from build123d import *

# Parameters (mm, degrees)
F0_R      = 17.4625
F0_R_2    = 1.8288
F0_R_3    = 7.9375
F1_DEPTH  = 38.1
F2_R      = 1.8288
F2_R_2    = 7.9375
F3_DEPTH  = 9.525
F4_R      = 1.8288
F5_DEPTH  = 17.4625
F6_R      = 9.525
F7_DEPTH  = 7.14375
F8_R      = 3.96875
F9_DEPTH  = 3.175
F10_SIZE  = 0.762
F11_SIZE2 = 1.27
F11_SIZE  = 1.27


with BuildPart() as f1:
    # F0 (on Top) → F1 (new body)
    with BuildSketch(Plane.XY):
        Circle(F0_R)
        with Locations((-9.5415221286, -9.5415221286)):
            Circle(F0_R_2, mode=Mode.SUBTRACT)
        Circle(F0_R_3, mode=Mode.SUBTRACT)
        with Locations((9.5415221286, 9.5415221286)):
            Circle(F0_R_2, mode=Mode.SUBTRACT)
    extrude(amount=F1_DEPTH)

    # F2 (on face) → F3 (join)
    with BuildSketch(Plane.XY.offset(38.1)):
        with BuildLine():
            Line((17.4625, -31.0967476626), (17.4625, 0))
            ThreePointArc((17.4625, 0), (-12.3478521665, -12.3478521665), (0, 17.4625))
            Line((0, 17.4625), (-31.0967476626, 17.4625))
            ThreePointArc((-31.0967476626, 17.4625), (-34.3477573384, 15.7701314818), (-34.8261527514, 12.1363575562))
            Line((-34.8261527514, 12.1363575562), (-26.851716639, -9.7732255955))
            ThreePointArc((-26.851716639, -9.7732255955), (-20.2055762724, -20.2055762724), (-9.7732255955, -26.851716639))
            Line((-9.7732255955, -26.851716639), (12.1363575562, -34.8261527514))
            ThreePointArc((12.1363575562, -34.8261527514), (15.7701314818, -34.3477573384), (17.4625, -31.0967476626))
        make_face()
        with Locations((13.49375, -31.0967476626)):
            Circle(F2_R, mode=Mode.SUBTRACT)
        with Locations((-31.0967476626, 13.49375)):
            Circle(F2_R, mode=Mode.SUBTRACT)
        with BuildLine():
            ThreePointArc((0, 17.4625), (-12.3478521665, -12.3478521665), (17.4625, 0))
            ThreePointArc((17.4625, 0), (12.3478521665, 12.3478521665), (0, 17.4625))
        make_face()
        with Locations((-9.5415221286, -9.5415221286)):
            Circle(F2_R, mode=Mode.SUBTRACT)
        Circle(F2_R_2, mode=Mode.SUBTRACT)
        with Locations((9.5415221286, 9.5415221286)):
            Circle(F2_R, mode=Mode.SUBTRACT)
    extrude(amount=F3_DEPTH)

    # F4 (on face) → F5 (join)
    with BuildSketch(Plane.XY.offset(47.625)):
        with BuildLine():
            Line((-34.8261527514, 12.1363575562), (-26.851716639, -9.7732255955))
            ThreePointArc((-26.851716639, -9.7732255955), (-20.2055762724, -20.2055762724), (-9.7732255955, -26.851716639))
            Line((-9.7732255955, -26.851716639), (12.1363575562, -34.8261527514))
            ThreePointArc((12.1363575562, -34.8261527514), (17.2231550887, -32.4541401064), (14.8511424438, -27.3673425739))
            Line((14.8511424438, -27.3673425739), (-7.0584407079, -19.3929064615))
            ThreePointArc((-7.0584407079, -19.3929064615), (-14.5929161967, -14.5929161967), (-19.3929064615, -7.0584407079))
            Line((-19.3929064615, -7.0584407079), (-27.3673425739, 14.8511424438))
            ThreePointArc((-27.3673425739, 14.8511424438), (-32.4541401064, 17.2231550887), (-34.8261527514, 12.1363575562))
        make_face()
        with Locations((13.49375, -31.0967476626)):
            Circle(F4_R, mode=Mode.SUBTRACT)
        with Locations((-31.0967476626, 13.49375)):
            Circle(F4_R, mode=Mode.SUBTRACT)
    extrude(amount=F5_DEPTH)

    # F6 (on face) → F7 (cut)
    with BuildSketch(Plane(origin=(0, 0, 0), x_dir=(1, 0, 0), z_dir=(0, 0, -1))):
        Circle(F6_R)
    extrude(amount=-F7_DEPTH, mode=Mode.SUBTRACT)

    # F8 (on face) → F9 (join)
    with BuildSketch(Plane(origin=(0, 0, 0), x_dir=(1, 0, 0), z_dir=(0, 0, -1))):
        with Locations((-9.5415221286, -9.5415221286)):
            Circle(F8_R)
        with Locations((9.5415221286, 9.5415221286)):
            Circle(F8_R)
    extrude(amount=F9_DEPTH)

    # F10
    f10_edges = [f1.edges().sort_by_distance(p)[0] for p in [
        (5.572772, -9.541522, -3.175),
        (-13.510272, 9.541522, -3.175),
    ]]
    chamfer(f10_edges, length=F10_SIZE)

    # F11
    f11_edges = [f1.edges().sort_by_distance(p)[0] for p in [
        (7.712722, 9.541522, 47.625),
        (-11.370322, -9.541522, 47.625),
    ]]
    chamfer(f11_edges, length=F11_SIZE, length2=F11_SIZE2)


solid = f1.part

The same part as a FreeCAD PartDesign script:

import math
import FreeCAD as App
import Part
import Sketcher
from FreeCAD import Vector
Q = App.Units.Quantity


def edges_at(feature, points):
    """Names of the edges that pass closest to the given points."""
    edges = feature.Shape.Edges
    near = lambda p: min(range(len(edges)), key=lambda i: edges[i].distToShape(Part.Vertex(*p))[0])
    return sorted({f"Edge{near(p) + 1}" for p in points})

doc = App.newDocument("Part")
body = doc.addObject("PartDesign::Body", "Body")

# Sketch on XY plane
sketch1 = body.newObject("Sketcher::SketchObject", "Sketch")
sketch1.AttachmentSupport = (doc.getObject("XY_Plane"), [""])
sketch1.MapMode = "FlatFace"
sketch1.addGeometry([
    Part.Circle(Vector(0, 0, 0), Vector(0, 0, 1), 17.5),
    Part.Circle(Vector(-9.5, -9.5, 0), Vector(0, 0, 1), 1.8),
    Part.Circle(Vector(0, 0, 0), Vector(0, 0, 1), 7.9),
    Part.Circle(Vector(9.5, 9.5, 0), Vector(0, 0, 1), 1.8),
], False)
sketch1.addConstraint([
    Sketcher.Constraint("Coincident", 0, 3, -1, 1),
    Sketcher.Constraint("Coincident", 2, 3, -1, 1),
    Sketcher.Constraint("Equal", 1, 3),
    Sketcher.Constraint("Symmetric", 1, 3, 3, 3, -1, 1),
    Sketcher.Constraint("Diameter", 0, Q("1.375 in")),
    Sketcher.Constraint("Diameter", 1, Q("0.144 in")),
    Sketcher.Constraint("Diameter", 2, Q("0.625 in")),
    Sketcher.Constraint("DistanceX", 1, 3, -1, 1, Q("9.541522 mm")),
    Sketcher.Constraint("DistanceY", 1, 3, -1, 1, Q("9.541522 mm")),
])
pad1 = body.newObject("PartDesign::Pad", "Pad")
pad1.Profile = sketch1
pad1.Length = Q("1.5 in")

# Sketch on XY plane
sketch2 = body.newObject("Sketcher::SketchObject", "Sketch001")
sketch2.AttachmentSupport = (doc.getObject("XY_Plane"), [""])
sketch2.MapMode = "FlatFace"
sketch2.AttachmentOffset = App.Placement(Vector(0, 0, 1.5 * 25.4), App.Rotation())
sketch2.addGeometry([
    Part.LineSegment(Vector(17.5, -31.1, 0), Vector(17.5, 0, 0)),  # 0
    Part.ArcOfCircle(Part.Circle(Vector(0, 0, 0), Vector(0, 0, 1), 17.5), math.radians(0), math.radians(90)),  # 1
    Part.LineSegment(Vector(0, 17.5, 0), Vector(-31.1, 17.5, 0)),  # 2
    Part.ArcOfCircle(Part.Circle(Vector(-31.1, 13.5, 0), Vector(0, 0, 1), 4), math.radians(90), math.radians(200)),  # 3
    Part.LineSegment(Vector(-34.8, 12.1, 0), Vector(-26.9, -9.8, 0)),  # 4
    Part.ArcOfCircle(Part.Circle(Vector(0, 0, 0), Vector(0, 0, 1), 28.6), math.radians(-160), math.radians(-110)),  # 5
    Part.LineSegment(Vector(-9.8, -26.9, 0), Vector(12.1, -34.8, 0)),  # 6
    Part.ArcOfCircle(Part.Circle(Vector(13.5, -31.1, 0), Vector(0, 0, 1), 4), math.radians(-110), math.radians(0)),  # 7
    Part.Circle(Vector(-9.5, -9.5, 0), Vector(0, 0, 1), 1.8),  # 8
    Part.Circle(Vector(13.5, -31.1, 0), Vector(0, 0, 1), 1.8),  # 9
    Part.Circle(Vector(-31.1, 13.5, 0), Vector(0, 0, 1), 1.8),  # 10
    Part.Circle(Vector(0, 0, 0), Vector(0, 0, 1), 7.9),  # 11
    Part.Circle(Vector(9.5, 9.5, 0), Vector(0, 0, 1), 1.8),  # 12
], False)
sketch2.addConstraint([
    Sketcher.Constraint("Tangent", 0, 2, 1, 1),
    Sketcher.Constraint("Tangent", 1, 2, 2, 1),
    Sketcher.Constraint("Tangent", 2, 2, 3, 1),
    Sketcher.Constraint("Tangent", 3, 2, 4, 1),
    Sketcher.Constraint("Tangent", 4, 2, 5, 1),
    Sketcher.Constraint("Tangent", 5, 2, 6, 1),
    Sketcher.Constraint("Tangent", 6, 2, 7, 1),
    Sketcher.Constraint("Tangent", 7, 2, 0, 1),
    Sketcher.Constraint("Vertical", 0),
    Sketcher.Constraint("Horizontal", 2),
    Sketcher.Constraint("Coincident", 1, 3, -1, 1),
    Sketcher.Constraint("Coincident", 5, 3, -1, 1),
    Sketcher.Constraint("Coincident", 11, 3, -1, 1),
    Sketcher.Constraint("Coincident", 9, 3, 7, 3),
    Sketcher.Constraint("Coincident", 10, 3, 3, 3),
    Sketcher.Constraint("Equal", 3, 7),
    Sketcher.Constraint("Equal", 8, 9),
    Sketcher.Constraint("Equal", 9, 10),
    Sketcher.Constraint("Equal", 10, 12),
    Sketcher.Constraint("Symmetric", 8, 3, 12, 3, -1, 1),
    Sketcher.Constraint("Equal", 2, 0),
    Sketcher.Constraint("Diameter", 8, Q("0.144 in")),
    Sketcher.Constraint("Diameter", 11, Q("0.625 in")),
    Sketcher.Constraint("Angle", 4, Q("-70 deg")),
    Sketcher.Constraint("Radius", 1, Q("0.6875 in")),
    Sketcher.Constraint("Radius", 3, Q("0.15625 in")),
    Sketcher.Constraint("Radius", 5, Q("1.125 in")),
    Sketcher.Constraint("DistanceX", 3, 3, 12, 3, Q("40.63827 mm")),
    Sketcher.Constraint("DistanceY", 8, 3, 3, 2, Q("21.67788 mm")),
])
pad2 = body.newObject("PartDesign::Pad", "Pad001")
pad2.Profile = sketch2
pad2.Length = Q("0.375 in")

# Sketch on XY plane
sketch3 = body.newObject("Sketcher::SketchObject", "Sketch002")
sketch3.AttachmentSupport = (doc.getObject("XY_Plane"), [""])
sketch3.MapMode = "FlatFace"
sketch3.AttachmentOffset = App.Placement(Vector(0, 0, 1.875 * 25.4), App.Rotation())
sketch3.addGeometry([
    Part.LineSegment(Vector(-34.8, 12.1, 0), Vector(-26.9, -9.8, 0)),  # 0
    Part.ArcOfCircle(Part.Circle(Vector(0, 0, 0), Vector(0, 0, 1), 28.6), math.radians(-160), math.radians(-110)),  # 1
    Part.LineSegment(Vector(-9.8, -26.9, 0), Vector(12.1, -34.8, 0)),  # 2
    Part.ArcOfCircle(Part.Circle(Vector(13.5, -31.1, 0), Vector(0, 0, 1), 4), math.radians(-110), math.radians(70)),  # 3
    Part.LineSegment(Vector(14.9, -27.4, 0), Vector(-7.1, -19.4, 0)),  # 4
    Part.ArcOfCircle(Part.Circle(Vector(0, 0, 0), Vector(0, 0, 1), 20.6), math.radians(-160), math.radians(-110)),  # 5
    Part.LineSegment(Vector(-19.4, -7.1, 0), Vector(-27.4, 14.9, 0)),  # 6
    Part.ArcOfCircle(Part.Circle(Vector(-31.1, 13.5, 0), Vector(0, 0, 1), 4), math.radians(20), math.radians(200)),  # 7
    Part.Circle(Vector(13.5, -31.1, 0), Vector(0, 0, 1), 1.8),  # 8
    Part.Circle(Vector(-31.1, 13.5, 0), Vector(0, 0, 1), 1.8),  # 9
], False)
sketch3.addConstraint([
    Sketcher.Constraint("Tangent", 0, 2, 1, 1),
    Sketcher.Constraint("Tangent", 1, 2, 2, 1),
    Sketcher.Constraint("Tangent", 2, 2, 3, 1),
    Sketcher.Constraint("Tangent", 3, 2, 4, 1),
    Sketcher.Constraint("Tangent", 4, 2, 5, 2),
    Sketcher.Constraint("Tangent", 5, 1, 6, 1),
    Sketcher.Constraint("Tangent", 6, 2, 7, 1),
    Sketcher.Constraint("Tangent", 7, 2, 0, 1),
    Sketcher.Constraint("Coincident", 1, 3, -1, 1),
    Sketcher.Constraint("Coincident", 5, 3, -1, 1),
    Sketcher.Constraint("Coincident", 8, 3, 3, 3),
    Sketcher.Constraint("Coincident", 9, 3, 7, 3),
    Sketcher.Constraint("Equal", 3, 7),
    Sketcher.Constraint("Equal", 8, 9),
    Sketcher.Constraint("Parallel", 2, 4),
    Sketcher.Constraint("Equal", 0, 2),
    Sketcher.Constraint("Diameter", 8, Q("0.144 in")),
    Sketcher.Constraint("Angle", 0, Q("-70 deg")),
    Sketcher.Constraint("Angle", 2, Q("-20 deg")),
    Sketcher.Constraint("Radius", 1, Q("1.125 in")),
    Sketcher.Constraint("Radius", 3, Q("0.15625 in")),
    Sketcher.Constraint("DistanceX", -1, 1, 3, 3, Q("0.53125 in")),
])
pad3 = body.newObject("PartDesign::Pad", "Pad002")
pad3.Profile = sketch3
pad3.Length = Q("0.6875 in")

# Sketch on XY plane
sketch4 = body.newObject("Sketcher::SketchObject", "Sketch003")
sketch4.AttachmentSupport = (doc.getObject("XY_Plane"), [""])
sketch4.MapMode = "FlatFace"
sketch4.addGeometry(Part.Circle(Vector(0, 0, 0), Vector(0, 0, 1), 10), False)
sketch4.addConstraint([
    Sketcher.Constraint("Coincident", 0, 3, -1, 1),
    Sketcher.Constraint("Diameter", 0, Q("0.75 in")),
])
pocket1 = body.newObject("PartDesign::Pocket", "Pocket")
pocket1.Profile = sketch4
pocket1.Length = Q("0.28125 in")
pocket1.Reversed = True

# Sketch on XY plane
sketch5 = body.newObject("Sketcher::SketchObject", "Sketch004")
sketch5.AttachmentSupport = (doc.getObject("XY_Plane"), [""])
sketch5.MapMode = "FlatFace"
sketch5.addGeometry([
    Part.Circle(Vector(-9.5, 9.5, 0), Vector(0, 0, 1), 4),
    Part.Circle(Vector(9.5, -9.5, 0), Vector(0, 0, 1), 4),
], False)
sketch5.addConstraint([
    Sketcher.Constraint("Equal", 0, 1),
    Sketcher.Constraint("Symmetric", 0, 3, 1, 3, -1, 1),
    Sketcher.Constraint("Diameter", 0, Q("0.3125 in")),
    Sketcher.Constraint("DistanceX", 0, 3, -1, 1, Q("9.541522 mm")),
    Sketcher.Constraint("DistanceY", -1, 1, 0, 3, Q("9.541522 mm")),
])
pad4 = body.newObject("PartDesign::Pad", "Pad003")
pad4.Profile = sketch5
pad4.Length = Q("0.125 in")
pad4.Reversed = True
doc.recompute()

chamfer = body.newObject("PartDesign::Chamfer", "Chamfer")
chamfer.Base = (pad4, edges_at(pad4, [(5.573, -9.542, -3.175), (-13.51, 9.542, -3.175)]))
chamfer.Size = Q("0.03 in")
doc.recompute()

chamfer2 = body.newObject("PartDesign::Chamfer", "Chamfer001")
chamfer2.Base = (chamfer, edges_at(chamfer, [(7.713, 9.542, 47.625), (-11.37, -9.542, 47.625)]))
chamfer2.ChamferType = "Two distances"
chamfer2.Size = Q("0.05 in")
chamfer2.Size2 = Q("0.05 in")

doc.recompute()
